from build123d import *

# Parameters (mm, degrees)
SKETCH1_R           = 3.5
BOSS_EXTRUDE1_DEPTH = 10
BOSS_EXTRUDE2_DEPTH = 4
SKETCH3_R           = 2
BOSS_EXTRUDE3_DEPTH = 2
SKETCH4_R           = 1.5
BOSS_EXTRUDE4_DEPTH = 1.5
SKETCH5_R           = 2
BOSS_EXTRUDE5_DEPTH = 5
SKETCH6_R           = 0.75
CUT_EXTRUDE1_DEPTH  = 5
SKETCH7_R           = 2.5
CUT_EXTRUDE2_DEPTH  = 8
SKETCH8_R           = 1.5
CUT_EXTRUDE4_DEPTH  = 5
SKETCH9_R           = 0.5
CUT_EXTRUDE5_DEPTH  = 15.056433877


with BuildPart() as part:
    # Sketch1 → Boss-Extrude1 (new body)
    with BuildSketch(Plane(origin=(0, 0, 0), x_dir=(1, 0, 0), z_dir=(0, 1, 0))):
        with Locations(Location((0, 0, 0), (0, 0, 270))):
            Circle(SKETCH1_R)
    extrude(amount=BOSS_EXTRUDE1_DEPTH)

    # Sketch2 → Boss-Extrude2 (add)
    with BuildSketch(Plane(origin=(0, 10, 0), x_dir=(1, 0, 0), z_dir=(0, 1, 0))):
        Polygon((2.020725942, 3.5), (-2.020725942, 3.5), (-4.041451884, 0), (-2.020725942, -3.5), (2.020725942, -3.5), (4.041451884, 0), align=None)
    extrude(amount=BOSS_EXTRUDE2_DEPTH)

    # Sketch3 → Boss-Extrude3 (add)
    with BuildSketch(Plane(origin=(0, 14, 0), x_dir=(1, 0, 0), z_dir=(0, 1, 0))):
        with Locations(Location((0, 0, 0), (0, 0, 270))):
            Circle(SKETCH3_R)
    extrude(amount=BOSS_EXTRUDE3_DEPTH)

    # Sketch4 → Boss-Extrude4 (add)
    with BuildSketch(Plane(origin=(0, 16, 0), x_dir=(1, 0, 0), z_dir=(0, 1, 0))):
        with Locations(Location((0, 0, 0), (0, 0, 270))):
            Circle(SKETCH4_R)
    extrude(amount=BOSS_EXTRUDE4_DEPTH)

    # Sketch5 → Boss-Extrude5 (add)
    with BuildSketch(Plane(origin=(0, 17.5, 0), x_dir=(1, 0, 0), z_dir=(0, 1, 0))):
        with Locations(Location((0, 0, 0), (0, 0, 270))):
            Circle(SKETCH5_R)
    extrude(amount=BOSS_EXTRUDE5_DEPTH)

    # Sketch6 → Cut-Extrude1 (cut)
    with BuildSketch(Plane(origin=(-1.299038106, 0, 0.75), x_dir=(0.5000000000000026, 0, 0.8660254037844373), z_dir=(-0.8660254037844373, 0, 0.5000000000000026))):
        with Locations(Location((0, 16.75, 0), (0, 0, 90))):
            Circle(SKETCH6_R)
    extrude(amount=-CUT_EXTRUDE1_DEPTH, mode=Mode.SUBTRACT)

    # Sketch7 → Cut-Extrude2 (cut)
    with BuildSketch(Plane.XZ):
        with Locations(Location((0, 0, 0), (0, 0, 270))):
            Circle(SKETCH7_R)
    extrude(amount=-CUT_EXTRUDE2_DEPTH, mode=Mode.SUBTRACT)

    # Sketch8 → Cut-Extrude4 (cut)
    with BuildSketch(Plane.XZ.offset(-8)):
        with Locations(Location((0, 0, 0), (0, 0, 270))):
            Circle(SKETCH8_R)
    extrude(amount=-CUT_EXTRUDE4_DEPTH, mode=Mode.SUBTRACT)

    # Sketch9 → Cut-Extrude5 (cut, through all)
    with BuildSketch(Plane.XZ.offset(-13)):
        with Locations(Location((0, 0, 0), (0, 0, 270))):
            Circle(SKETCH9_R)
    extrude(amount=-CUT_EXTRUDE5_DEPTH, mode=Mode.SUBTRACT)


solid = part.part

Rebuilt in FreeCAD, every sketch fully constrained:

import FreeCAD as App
import Part
import Sketcher
Q = App.Units.Quantity

doc = App.newDocument("Part")
body = doc.addObject("PartDesign::Body", "Body")

sketch1 = body.newObject("Sketcher::SketchObject", "Sketch")
sketch1.AttachmentSupport = (doc.getObject("XZ_Plane"), [""])
sketch1.MapMode = "FlatFace"
sketch1.addGeometry(Part.Circle(App.Vector(0, 0, 0), App.Vector(0, 0, 1), 3.5), False)
sketch1.addConstraint([
    Sketcher.Constraint("Coincident", 0, 3, -1, 1),
    Sketcher.Constraint("Diameter", 0, Q("7 mm")),
])
pad1 = body.newObject("PartDesign::Pad", "Pad")
pad1.Profile = sketch1
pad1.Length = 10
pad1.Reversed = True

sketch2 = body.newObject("Sketcher::SketchObject", "Sketch001")
sketch2.AttachmentSupport = (doc.getObject("XZ_Plane"), [""])
sketch2.MapMode = "FlatFace"
sketch2.AttachmentOffset = App.Placement(App.Vector(0, 0, -10), App.Rotation())
sketch2.addGeometry([
    Part.LineSegment(App.Vector(2.020726, -3.5, 0), App.Vector(-2.020726, -3.5, 0)),
    Part.LineSegment(App.Vector(-2.020726, -3.5, 0), App.Vector(-4.041452, 0, 0)),
    Part.LineSegment(App.Vector(-4.041452, 0, 0), App.Vector(-2.020726, 3.5, 0)),
    Part.LineSegment(App.Vector(-2.020726, 3.5, 0), App.Vector(2.020726, 3.5, 0)),
    Part.LineSegment(App.Vector(2.020726, 3.5, 0), App.Vector(4.041452, 0, 0)),
    Part.LineSegment(App.Vector(4.041452, 0, 0), App.Vector(2.020726, -3.5, 0)),
], False)
sketch2.addConstraint([
    Sketcher.Constraint("Coincident", 0, 2, 1, 1),
    Sketcher.Constraint("Coincident", 1, 2, 2, 1),
    Sketcher.Constraint("Coincident", 2, 2, 3, 1),
    Sketcher.Constraint("Coincident", 3, 2, 4, 1),
    Sketcher.Constraint("Coincident", 4, 2, 5, 1),
    Sketcher.Constraint("Coincident", 5, 2, 0, 1),
    Sketcher.Constraint("Horizontal", 0),
    Sketcher.Constraint("Horizontal", 3),
    Sketcher.Constraint("Symmetric", 0, 2, 3, 2, -1, 1),
    Sketcher.Constraint("Symmetric", 1, 2, 4, 2, -1, 1),
    Sketcher.Constraint("PointOnObject", 1, 2, -1),
    Sketcher.Constraint("Parallel", 2, 5),
    Sketcher.Constraint("Vertical", 0, 2, 2, 2),
    Sketcher.Constraint("Angle", 1, Q("120 deg")),
    Sketcher.Constraint("DistanceY", 0, 2, 2, 2, Q("7 mm")),
    Sketcher.Constraint("DistanceX", 0, 2, 0, 1, Q("4.041452 mm")),
])
pad2 = body.newObject("PartDesign::Pad", "Pad001")
pad2.Profile = sketch2
pad2.Length = 4
pad2.Reversed = True

sketch3 = body.newObject("Sketcher::SketchObject", "Sketch002")
sketch3.AttachmentSupport = (doc.getObject("XZ_Plane"), [""])
sketch3.MapMode = "FlatFace"
sketch3.AttachmentOffset = App.Placement(App.Vector(0, 0, -14), App.Rotation())
sketch3.addGeometry(Part.Circle(App.Vector(0, 0, 0), App.Vector(0, 0, 1), 2), False)
sketch3.addConstraint([
    Sketcher.Constraint("Coincident", 0, 3, -1, 1),
    Sketcher.Constraint("Diameter", 0, Q("4 mm")),
])
pad3 = body.newObject("PartDesign::Pad", "Pad002")
pad3.Profile = sketch3
pad3.Length = 2
pad3.Reversed = True

sketch4 = body.newObject("Sketcher::SketchObject", "Sketch003")
sketch4.AttachmentSupport = (doc.getObject("XZ_Plane"), [""])
sketch4.MapMode = "FlatFace"
sketch4.AttachmentOffset = App.Placement(App.Vector(0, 0, -16), App.Rotation())
sketch4.addGeometry(Part.Circle(App.Vector(0, 0, 0), App.Vector(0, 0, 1), 1.5), False)
sketch4.addConstraint([
    Sketcher.Constraint("Coincident", 0, 3, -1, 1),
    Sketcher.Constraint("Diameter", 0, Q("3 mm")),
])
pad4 = body.newObject("PartDesign::Pad", "Pad003")
pad4.Profile = sketch4
pad4.Length = 1.5
pad4.Reversed = True

sketch5 = body.newObject("Sketcher::SketchObject", "Sketch004")
sketch5.AttachmentSupport = (doc.getObject("XZ_Plane"), [""])
sketch5.MapMode = "FlatFace"
sketch5.AttachmentOffset = App.Placement(App.Vector(0, 0, -17.5), App.Rotation())
sketch5.addGeometry(Part.Circle(App.Vector(0, 0, 0), App.Vector(0, 0, 1), 2), False)
sketch5.addConstraint([
    Sketcher.Constraint("Coincident", 0, 3, -1, 1),
    Sketcher.Constraint("Diameter", 0, Q("4 mm")),
])
pad5 = body.newObject("PartDesign::Pad", "Pad004")
pad5.Profile = sketch5
pad5.Length = 5
pad5.Reversed = True

sketch6 = body.newObject("Sketcher::SketchObject", "Sketch005")
sketch6.Placement = App.Placement(App.Vector(-1.299038, 0, 0.75), App.Rotation(App.Vector(0.5, 0, 0.866025404), App.Vector(0, 1, 0), App.Vector(-0.866025404, 0, 0.5), "ZXY"))
sketch6.addGeometry(Part.Circle(App.Vector(0, 16.75, 0), App.Vector(0, 0, 1), 0.75), False)
sketch6.addConstraint([
    Sketcher.Constraint("PointOnObject", 0, 3, -2),
    Sketcher.Constraint("Diameter", 0, Q("1.5 mm")),
    Sketcher.Constraint("DistanceY", -1, 1, 0, 3, Q("16.75 mm")),
])
pocket1 = body.newObject("PartDesign::Pocket", "Pocket")
pocket1.Profile = sketch6
pocket1.Length = 5

sketch7 = body.newObject("Sketcher::SketchObject", "Sketch006")
sketch7.AttachmentSupport = (doc.getObject("XZ_Plane"), [""])
sketch7.MapMode = "FlatFace"
sketch7.addGeometry(Part.Circle(App.Vector(0, 0, 0), App.Vector(0, 0, 1), 2.5), False)
sketch7.addConstraint([
    Sketcher.Constraint("Coincident", 0, 3, -1, 1),
    Sketcher.Constraint("Diameter", 0, Q("5 mm")),
])
pocket2 = body.newObject("PartDesign::Pocket", "Pocket001")
pocket2.Profile = sketch7
pocket2.Length = 8

sketch8 = body.newObject("Sketcher::SketchObject", "Sketch007")
sketch8.AttachmentSupport = (doc.getObject("XZ_Plane"), [""])
sketch8.MapMode = "FlatFace"
sketch8.AttachmentOffset = App.Placement(App.Vector(0, 0, -8), App.Rotation())
sketch8.addGeometry(Part.Circle(App.Vector(0, 0, 0), App.Vector(0, 0, 1), 1.5), False)
sketch8.addConstraint([
    Sketcher.Constraint("Coincident", 0, 3, -1, 1),
    Sketcher.Constraint("Diameter", 0, Q("3 mm")),
])
pocket3 = body.newObject("PartDesign::Pocket", "Pocket002")
pocket3.Profile = sketch8
pocket3.Length = 5

sketch9 = body.newObject("Sketcher::SketchObject", "Sketch008")
sketch9.AttachmentSupport = (doc.getObject("XZ_Plane"), [""])
sketch9.MapMode = "FlatFace"
sketch9.AttachmentOffset = App.Placement(App.Vector(0, 0, -13), App.Rotation())
sketch9.addGeometry(Part.Circle(App.Vector(0, 0, 0), App.Vector(0, 0, 1), 0.5), False)
sketch9.addConstraint([
    Sketcher.Constraint("Coincident", 0, 3, -1, 1),
    Sketcher.Constraint("Diameter", 0, Q("1 mm")),
])
pocket4 = body.newObject("PartDesign::Pocket", "Pocket003")
pocket4.Profile = sketch9
pocket4.Type = "ThroughAll"

doc.recompute()
